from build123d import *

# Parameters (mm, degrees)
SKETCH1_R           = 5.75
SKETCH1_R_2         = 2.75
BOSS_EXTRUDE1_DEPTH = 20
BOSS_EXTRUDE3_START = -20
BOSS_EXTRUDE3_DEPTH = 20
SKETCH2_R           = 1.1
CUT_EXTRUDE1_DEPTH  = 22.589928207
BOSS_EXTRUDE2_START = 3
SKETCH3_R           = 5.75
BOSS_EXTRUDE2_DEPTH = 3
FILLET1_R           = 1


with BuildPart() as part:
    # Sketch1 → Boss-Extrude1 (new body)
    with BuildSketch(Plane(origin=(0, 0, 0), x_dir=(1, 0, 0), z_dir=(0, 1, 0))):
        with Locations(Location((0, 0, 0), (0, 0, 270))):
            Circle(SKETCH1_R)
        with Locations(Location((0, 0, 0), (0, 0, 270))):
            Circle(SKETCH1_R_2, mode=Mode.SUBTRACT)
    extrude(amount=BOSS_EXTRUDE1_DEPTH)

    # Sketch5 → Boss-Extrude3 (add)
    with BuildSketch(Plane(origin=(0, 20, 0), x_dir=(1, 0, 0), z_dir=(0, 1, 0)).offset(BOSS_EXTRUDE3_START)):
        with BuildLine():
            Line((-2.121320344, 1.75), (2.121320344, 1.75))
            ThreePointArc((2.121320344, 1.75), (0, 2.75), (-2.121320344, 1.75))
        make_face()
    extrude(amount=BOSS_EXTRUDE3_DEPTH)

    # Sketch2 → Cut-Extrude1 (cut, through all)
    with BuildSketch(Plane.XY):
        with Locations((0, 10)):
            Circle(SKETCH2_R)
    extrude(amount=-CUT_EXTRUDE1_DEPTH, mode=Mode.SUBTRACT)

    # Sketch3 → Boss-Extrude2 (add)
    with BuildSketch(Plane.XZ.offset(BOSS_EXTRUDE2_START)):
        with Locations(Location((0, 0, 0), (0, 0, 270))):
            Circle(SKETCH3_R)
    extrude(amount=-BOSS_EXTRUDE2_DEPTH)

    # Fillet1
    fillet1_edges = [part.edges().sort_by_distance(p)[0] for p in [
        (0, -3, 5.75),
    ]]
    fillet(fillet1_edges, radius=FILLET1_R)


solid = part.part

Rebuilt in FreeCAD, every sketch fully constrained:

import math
import FreeCAD as App
import Part
import Sketcher

V = App.Vector
Q = App.Units.Quantity


def edges_at(feature, points):
    """Names of the edges that pass closest to the given points."""
    edges = feature.Shape.Edges
    near = lambda p: min(range(len(edges)), key=lambda i: edges[i].distToShape(Part.Vertex(*p))[0])
    return sorted({f"Edge{near(p) + 1}" for p in points})

doc = App.newDocument("Part")
body = doc.addObject("PartDesign::Body", "Body")

# Sketch on XZ plane
sketch1 = body.newObject("Sketcher::SketchObject", "Sketch")
sketch1.AttachmentSupport = (doc.getObject("XZ_Plane"), [""])
sketch1.MapMode = "FlatFace"
sketch1.addGeometry([
    Part.Circle(V(0, 0, 0), V(0, 0, 1), 5.8),
    Part.Circle(V(0, 0, 0), V(0, 0, 1), 2.8),
], False)
sketch1.addConstraint([
    Sketcher.Constraint("Coincident", 0, 3, -1, 1),
    Sketcher.Constraint("Coincident", 1, 3, -1, 1),
    Sketcher.Constraint("Diameter", 0, Q("11.5 mm")),
    Sketcher.Constraint("Diameter", 1, Q("5.5 mm")),
])
pad1 = body.newObject("PartDesign::Pad", "Pad")
pad1.Profile = sketch1
pad1.Length = 20
pad1.Reversed = True

# Sketch on XZ plane
sketch2 = body.newObject("Sketcher::SketchObject", "Sketch001")
sketch2.AttachmentSupport = (doc.getObject("XZ_Plane"), [""])
sketch2.MapMode = "FlatFace"
sketch2.addGeometry([
    Part.LineSegment(V(-2.1, -1.8, 0), V(2.1, -1.8, 0)),
    Part.ArcOfCircle(Part.Circle(V(0, 0, 0), V(0, 0, 1), 2.8), math.radians(-140), math.radians(-40)),
], False)
sketch2.addConstraint([
    Sketcher.Constraint("Coincident", 0, 1, 1, 1),
    Sketcher.Constraint("Coincident", 1, 2, 0, 2),
    Sketcher.Constraint("Horizontal", 0),
    Sketcher.Constraint("Coincident", 1, 3, -1, 1),
    Sketcher.Constraint("Radius", 1, Q("2.75 mm")),
    Sketcher.Constraint("DistanceY", 0, 1, -1, 1, Q("1.75 mm")),
])
pad2 = body.newObject("PartDesign::Pad", "Pad001")
pad2.Profile = sketch2
pad2.Length = 20
pad2.Reversed = True

# Sketch on XY plane
sketch3 = body.newObject("Sketcher::SketchObject", "Sketch002")
sketch3.AttachmentSupport = (doc.getObject("XY_Plane"), [""])
sketch3.MapMode = "FlatFace"
sketch3.addGeometry(Part.Circle(V(0, 10, 0), V(0, 0, 1), 1.1), False)
sketch3.addConstraint([
    Sketcher.Constraint("PointOnObject", 0, 3, -2),
    Sketcher.Constraint("Diameter", 0, Q("2.2 mm")),
    Sketcher.Constraint("DistanceY", -1, 1, 0, 3, Q("10 mm")),
])
pocket1 = body.newObject("PartDesign::Pocket", "Pocket")
pocket1.Profile = sketch3
pocket1.Type = "ThroughAll"

# Sketch on XZ plane
sketch4 = body.newObject("Sketcher::SketchObject", "Sketch003")
sketch4.AttachmentSupport = (doc.getObject("XZ_Plane"), [""])
sketch4.MapMode = "FlatFace"
sketch4.AttachmentOffset = App.Placement(V(0, 0, 3), App.Rotation())
sketch4.addGeometry(Part.Circle(V(0, 0, 0), V(0, 0, 1), 6), False)
sketch4.addConstraint([
    Sketcher.Constraint("Coincident", 0, 3, -1, 1),
    Sketcher.Constraint("Diameter", 0, Q("11.5 mm")),
])
pad3 = body.newObject("PartDesign::Pad", "Pad002")
pad3.Profile = sketch4
pad3.Length = 3
pad3.Reversed = True
doc.recompute()

fillet = body.newObject("PartDesign::Fillet", "Fillet")
fillet.Base = (pad3, edges_at(pad3, [(0, -3, 5.75)]))
fillet.Radius = 1

doc.recompute()
